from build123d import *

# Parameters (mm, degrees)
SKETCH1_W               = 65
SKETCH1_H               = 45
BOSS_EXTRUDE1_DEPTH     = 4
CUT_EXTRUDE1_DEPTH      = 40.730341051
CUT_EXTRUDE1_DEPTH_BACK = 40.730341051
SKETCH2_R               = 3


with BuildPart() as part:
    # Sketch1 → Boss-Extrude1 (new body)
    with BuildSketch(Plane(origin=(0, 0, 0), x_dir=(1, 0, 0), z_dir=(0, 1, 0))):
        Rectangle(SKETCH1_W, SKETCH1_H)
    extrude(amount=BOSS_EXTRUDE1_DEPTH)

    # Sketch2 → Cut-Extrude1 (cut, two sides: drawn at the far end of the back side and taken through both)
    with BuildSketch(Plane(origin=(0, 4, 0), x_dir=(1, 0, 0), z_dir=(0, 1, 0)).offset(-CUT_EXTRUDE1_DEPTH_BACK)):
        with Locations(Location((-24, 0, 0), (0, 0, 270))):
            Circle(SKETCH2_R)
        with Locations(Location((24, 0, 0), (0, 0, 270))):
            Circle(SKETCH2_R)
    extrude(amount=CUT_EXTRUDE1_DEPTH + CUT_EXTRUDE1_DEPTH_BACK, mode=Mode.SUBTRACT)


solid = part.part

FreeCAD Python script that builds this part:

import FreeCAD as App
import Part
import Sketcher

V = App.Vector

doc = App.newDocument("Part")
body = doc.addObject("PartDesign::Body", "Body")

sketch1 = body.newObject("Sketcher::SketchObject", "Sketch")
sketch1.AttachmentSupport = (doc.getObject("XZ_Plane"), [""])
sketch1.MapMode = "FlatFace"
sketch1.addGeometry(Part.LineSegment(V(-32.5, -22.5, 0), V(-32.5, 22.5, 0)), False)
sketch1.addGeometry(Part.LineSegment(V(-32.5, 22.5, 0), V(32.5, 22.5, 0)), False)
sketch1.addGeometry(Part.LineSegment(V(32.5, 22.5, 0), V(32.5, -22.5, 0)), False)
sketch1.addGeometry(Part.LineSegment(V(32.5, -22.5, 0), V(-32.5, -22.5, 0)), False)
sketch1.addConstraint(Sketcher.Constraint("Coincident", 0, 2, 1, 1))
sketch1.addConstraint(Sketcher.Constraint("Coincident", 1, 2, 2, 1))
sketch1.addConstraint(Sketcher.Constraint("Coincident", 2, 2, 3, 1))
sketch1.addConstraint(Sketcher.Constraint("Coincident", 3, 2, 0, 1))
sketch1.addConstraint(Sketcher.Constraint("Vertical", 0))
sketch1.addConstraint(Sketcher.Constraint("Horizontal", 1))
sketch1.addConstraint(Sketcher.Constraint("Vertical", 2))
sketch1.addConstraint(Sketcher.Constraint("Horizontal", 3))
sketch1.addConstraint(Sketcher.Constraint("Symmetric", 0, 2, 2, 2, -1, 1))
sketch1.addConstraint(Sketcher.Constraint("DistanceX", 1, 1, 1, 2, 65.0))
sketch1.addConstraint(Sketcher.Constraint("DistanceY", 0, 1, 0, 2, 45.0))
pad1 = body.newObject("PartDesign::Pad", "Pad")
pad1.Profile = sketch1
pad1.Length = 4
pad1.Reversed = True

sketch2 = body.newObject("Sketcher::SketchObject", "Sketch001")
sketch2.AttachmentSupport = (doc.getObject("XZ_Plane"), [""])
sketch2.MapMode = "FlatFace"
sketch2.AttachmentOffset = App.Placement(V(0, 0, -4), App.Rotation())
sketch2.addGeometry(Part.Circle(V(-24, 0, 0), V(0, 0, 1), 3), False)
sketch2.addGeometry(Part.Circle(V(24, 0, 0), V(0, 0, 1), 3), False)
sketch2.addConstraint(Sketcher.Constraint("Equal", 0, 1))
sketch2.addConstraint(Sketcher.Constraint("Symmetric", 0, 3, 1, 3, -1, 1))
sketch2.addConstraint(Sketcher.Constraint("PointOnObject", 0, 3, -1))
sketch2.addConstraint(Sketcher.Constraint("Diameter", 0, 6.0))
sketch2.addConstraint(Sketcher.Constraint("DistanceX", 0, 3, -1, 1, 24.0))
pocket1 = body.newObject("PartDesign::Pocket", "Pocket")
pocket1.Profile = sketch2
pocket1.Type = "ThroughAll"
pocket1.Midplane = True

doc.recompute()
